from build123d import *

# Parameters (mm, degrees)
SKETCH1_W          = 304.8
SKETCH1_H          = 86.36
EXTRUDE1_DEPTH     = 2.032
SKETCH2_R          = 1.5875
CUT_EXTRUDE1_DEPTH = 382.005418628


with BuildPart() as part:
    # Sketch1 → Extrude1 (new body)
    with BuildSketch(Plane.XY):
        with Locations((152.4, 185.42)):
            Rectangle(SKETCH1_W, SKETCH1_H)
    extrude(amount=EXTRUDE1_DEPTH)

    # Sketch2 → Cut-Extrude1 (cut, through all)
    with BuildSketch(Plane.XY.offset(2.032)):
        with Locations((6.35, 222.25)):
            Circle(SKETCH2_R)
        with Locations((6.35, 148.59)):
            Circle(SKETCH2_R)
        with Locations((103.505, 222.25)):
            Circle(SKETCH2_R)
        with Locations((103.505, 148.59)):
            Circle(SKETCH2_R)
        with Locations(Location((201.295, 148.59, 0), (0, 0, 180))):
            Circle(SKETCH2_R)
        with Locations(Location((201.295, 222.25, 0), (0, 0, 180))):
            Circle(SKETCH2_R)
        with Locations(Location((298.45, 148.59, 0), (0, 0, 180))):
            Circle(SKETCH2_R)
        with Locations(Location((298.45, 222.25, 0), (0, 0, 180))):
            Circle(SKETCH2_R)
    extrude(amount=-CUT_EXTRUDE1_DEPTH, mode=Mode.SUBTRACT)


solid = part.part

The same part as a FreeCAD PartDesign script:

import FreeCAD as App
import Part
import Sketcher

V = App.Vector
Q = App.Units.Quantity


def add_polygon(sketch, points):
    """Adds a closed chain of lines whose ends are joined by coincident constraints."""
    first, n = sketch.GeometryCount, len(points)
    for a, b in zip(points, points[1:] + points[:1]):
        sketch.addGeometry(Part.LineSegment(App.Vector(*a, 0), App.Vector(*b, 0)), False)
    for i in range(n):
        sketch.addConstraint(Sketcher.Constraint("Coincident", first + i, 2, first + (i + 1) % n, 1))

doc = App.newDocument("Part")
params = doc.addObject("Spreadsheet::Sheet", "Params")
for row, (alias, value) in enumerate([
    ("sketch1_width", "12 in"),
    ("sketch1_height", "3.4 in"),
    ("pad1_length", "0.08 in"),
    ("sketch2_diameter", "0.125 in"),
], start=1):
    params.set(f"A{row}", alias)
    params.set(f"B{row}", "=" + value)
    params.setAlias(f"B{row}", alias)

body = doc.addObject("PartDesign::Body", "Body")

# Sketch on XY plane
sketch1 = body.newObject("Sketcher::SketchObject", "Sketch")
sketch1.AttachmentSupport = (doc.getObject("XY_Plane"), [""])
sketch1.MapMode = "FlatFace"
add_polygon(sketch1, [(0, 228.6), (0, 142.24), (304.8, 142.24), (304.8, 228.6)])  # lines 0-3
sketch1.addConstraint(Sketcher.Constraint("Vertical", 0))
sketch1.addConstraint(Sketcher.Constraint("Horizontal", 1))
sketch1.addConstraint(Sketcher.Constraint("Vertical", 2))
sketch1.addConstraint(Sketcher.Constraint("Horizontal", 3))
sketch1.addConstraint(Sketcher.Constraint("PointOnObject", 0, 2, -2))
sketch1.addConstraint(Sketcher.Constraint("DistanceX", 1, 1, 1, 2, Q("12 in")))
sketch1.addConstraint(Sketcher.Constraint("DistanceY", 0, 2, 0, 1, Q("3.4 in")))
sketch1.addConstraint(Sketcher.Constraint("DistanceY", -1, 1, 2, 2, Q("9 in")))
sketch1.setExpression("Constraints[9]", "Params.sketch1_width")
sketch1.setExpression("Constraints[10]", "Params.sketch1_height")
pad1 = body.newObject("PartDesign::Pad", "Pad")
pad1.Profile = sketch1
pad1.setExpression("Length", "Params.pad1_length")

# Sketch on XY plane
sketch2 = body.newObject("Sketcher::SketchObject", "Sketch001")
sketch2.AttachmentSupport = (doc.getObject("XY_Plane"), [""])
sketch2.MapMode = "FlatFace"
sketch2.AttachmentOffset = App.Placement(V(0, 0, 0.08 * 25.4), App.Rotation())
sketch2.addGeometry(Part.Circle(V(6.35, 222.25, 0), V(0, 0, 1), 1.5875), False)
sketch2.addGeometry(Part.Circle(V(6.35, 148.59, 0), V(0, 0, 1), 1.5875), False)
sketch2.addGeometry(Part.Circle(V(103.505, 222.25, 0), V(0, 0, 1), 1.5875), False)
sketch2.addGeometry(Part.Circle(V(103.505, 148.59, 0), V(0, 0, 1), 1.5875), False)
sketch2.addGeometry(Part.Circle(V(201.295, 148.59, 0), V(0, 0, 1), 1.5875), False)
sketch2.addGeometry(Part.Circle(V(201.295, 222.25, 0), V(0, 0, 1), 1.5875), False)
sketch2.addGeometry(Part.Circle(V(298.45, 148.59, 0), V(0, 0, 1), 1.5875), False)
sketch2.addGeometry(Part.Circle(V(298.45, 222.25, 0), V(0, 0, 1), 1.5875), False)
sketch2.addConstraint(Sketcher.Constraint("Equal", 0, 1))
sketch2.addConstraint(Sketcher.Constraint("Equal", 1, 2))
sketch2.addConstraint(Sketcher.Constraint("Equal", 2, 3))
sketch2.addConstraint(Sketcher.Constraint("Equal", 3, 4))
sketch2.addConstraint(Sketcher.Constraint("Equal", 4, 5))
sketch2.addConstraint(Sketcher.Constraint("Equal", 5, 6))
sketch2.addConstraint(Sketcher.Constraint("Equal", 6, 7))
sketch2.addConstraint(Sketcher.Constraint("Horizontal", 0, 3, 2, 3))
sketch2.addConstraint(Sketcher.Constraint("Horizontal", 1, 3, 3, 3))
sketch2.addConstraint(Sketcher.Constraint("Horizontal", 3, 3, 4, 3))
sketch2.addConstraint(Sketcher.Constraint("Horizontal", 2, 3, 5, 3))
sketch2.addConstraint(Sketcher.Constraint("Horizontal", 4, 3, 6, 3))
sketch2.addConstraint(Sketcher.Constraint("Horizontal", 5, 3, 7, 3))
sketch2.addConstraint(Sketcher.Constraint("Vertical", 0, 3, 1, 3))
sketch2.addConstraint(Sketcher.Constraint("Vertical", 2, 3, 3, 3))
sketch2.addConstraint(Sketcher.Constraint("Vertical", 4, 3, 5, 3))
sketch2.addConstraint(Sketcher.Constraint("Vertical", 6, 3, 7, 3))
sketch2.addConstraint(Sketcher.Constraint("Diameter", 0, Q("0.125 in")))
sketch2.addConstraint(Sketcher.Constraint("DistanceY", 1, 3, 0, 3, Q("2.9 in")))
sketch2.addConstraint(Sketcher.Constraint("DistanceX", 1, 3, 6, 3, Q("11.5 in")))
sketch2.addConstraint(Sketcher.Constraint("DistanceX", -1, 1, 0, 3, Q("0.25 in")))
sketch2.addConstraint(Sketcher.Constraint("DistanceY", -1, 1, 0, 3, Q("8.75 in")))
sketch2.addConstraint(Sketcher.Constraint("DistanceX", 3, 3, 4, 3, Q("3.85 in")))
sketch2.addConstraint(Sketcher.Constraint("DistanceX", -1, 1, 2, 3, Q("4.075 in")))
sketch2.setExpression("Constraints[17]", "Params.sketch2_diameter")
pocket1 = body.newObject("PartDesign::Pocket", "Pocket")
pocket1.Profile = sketch2
pocket1.Type = "ThroughAll"

doc.recompute()
